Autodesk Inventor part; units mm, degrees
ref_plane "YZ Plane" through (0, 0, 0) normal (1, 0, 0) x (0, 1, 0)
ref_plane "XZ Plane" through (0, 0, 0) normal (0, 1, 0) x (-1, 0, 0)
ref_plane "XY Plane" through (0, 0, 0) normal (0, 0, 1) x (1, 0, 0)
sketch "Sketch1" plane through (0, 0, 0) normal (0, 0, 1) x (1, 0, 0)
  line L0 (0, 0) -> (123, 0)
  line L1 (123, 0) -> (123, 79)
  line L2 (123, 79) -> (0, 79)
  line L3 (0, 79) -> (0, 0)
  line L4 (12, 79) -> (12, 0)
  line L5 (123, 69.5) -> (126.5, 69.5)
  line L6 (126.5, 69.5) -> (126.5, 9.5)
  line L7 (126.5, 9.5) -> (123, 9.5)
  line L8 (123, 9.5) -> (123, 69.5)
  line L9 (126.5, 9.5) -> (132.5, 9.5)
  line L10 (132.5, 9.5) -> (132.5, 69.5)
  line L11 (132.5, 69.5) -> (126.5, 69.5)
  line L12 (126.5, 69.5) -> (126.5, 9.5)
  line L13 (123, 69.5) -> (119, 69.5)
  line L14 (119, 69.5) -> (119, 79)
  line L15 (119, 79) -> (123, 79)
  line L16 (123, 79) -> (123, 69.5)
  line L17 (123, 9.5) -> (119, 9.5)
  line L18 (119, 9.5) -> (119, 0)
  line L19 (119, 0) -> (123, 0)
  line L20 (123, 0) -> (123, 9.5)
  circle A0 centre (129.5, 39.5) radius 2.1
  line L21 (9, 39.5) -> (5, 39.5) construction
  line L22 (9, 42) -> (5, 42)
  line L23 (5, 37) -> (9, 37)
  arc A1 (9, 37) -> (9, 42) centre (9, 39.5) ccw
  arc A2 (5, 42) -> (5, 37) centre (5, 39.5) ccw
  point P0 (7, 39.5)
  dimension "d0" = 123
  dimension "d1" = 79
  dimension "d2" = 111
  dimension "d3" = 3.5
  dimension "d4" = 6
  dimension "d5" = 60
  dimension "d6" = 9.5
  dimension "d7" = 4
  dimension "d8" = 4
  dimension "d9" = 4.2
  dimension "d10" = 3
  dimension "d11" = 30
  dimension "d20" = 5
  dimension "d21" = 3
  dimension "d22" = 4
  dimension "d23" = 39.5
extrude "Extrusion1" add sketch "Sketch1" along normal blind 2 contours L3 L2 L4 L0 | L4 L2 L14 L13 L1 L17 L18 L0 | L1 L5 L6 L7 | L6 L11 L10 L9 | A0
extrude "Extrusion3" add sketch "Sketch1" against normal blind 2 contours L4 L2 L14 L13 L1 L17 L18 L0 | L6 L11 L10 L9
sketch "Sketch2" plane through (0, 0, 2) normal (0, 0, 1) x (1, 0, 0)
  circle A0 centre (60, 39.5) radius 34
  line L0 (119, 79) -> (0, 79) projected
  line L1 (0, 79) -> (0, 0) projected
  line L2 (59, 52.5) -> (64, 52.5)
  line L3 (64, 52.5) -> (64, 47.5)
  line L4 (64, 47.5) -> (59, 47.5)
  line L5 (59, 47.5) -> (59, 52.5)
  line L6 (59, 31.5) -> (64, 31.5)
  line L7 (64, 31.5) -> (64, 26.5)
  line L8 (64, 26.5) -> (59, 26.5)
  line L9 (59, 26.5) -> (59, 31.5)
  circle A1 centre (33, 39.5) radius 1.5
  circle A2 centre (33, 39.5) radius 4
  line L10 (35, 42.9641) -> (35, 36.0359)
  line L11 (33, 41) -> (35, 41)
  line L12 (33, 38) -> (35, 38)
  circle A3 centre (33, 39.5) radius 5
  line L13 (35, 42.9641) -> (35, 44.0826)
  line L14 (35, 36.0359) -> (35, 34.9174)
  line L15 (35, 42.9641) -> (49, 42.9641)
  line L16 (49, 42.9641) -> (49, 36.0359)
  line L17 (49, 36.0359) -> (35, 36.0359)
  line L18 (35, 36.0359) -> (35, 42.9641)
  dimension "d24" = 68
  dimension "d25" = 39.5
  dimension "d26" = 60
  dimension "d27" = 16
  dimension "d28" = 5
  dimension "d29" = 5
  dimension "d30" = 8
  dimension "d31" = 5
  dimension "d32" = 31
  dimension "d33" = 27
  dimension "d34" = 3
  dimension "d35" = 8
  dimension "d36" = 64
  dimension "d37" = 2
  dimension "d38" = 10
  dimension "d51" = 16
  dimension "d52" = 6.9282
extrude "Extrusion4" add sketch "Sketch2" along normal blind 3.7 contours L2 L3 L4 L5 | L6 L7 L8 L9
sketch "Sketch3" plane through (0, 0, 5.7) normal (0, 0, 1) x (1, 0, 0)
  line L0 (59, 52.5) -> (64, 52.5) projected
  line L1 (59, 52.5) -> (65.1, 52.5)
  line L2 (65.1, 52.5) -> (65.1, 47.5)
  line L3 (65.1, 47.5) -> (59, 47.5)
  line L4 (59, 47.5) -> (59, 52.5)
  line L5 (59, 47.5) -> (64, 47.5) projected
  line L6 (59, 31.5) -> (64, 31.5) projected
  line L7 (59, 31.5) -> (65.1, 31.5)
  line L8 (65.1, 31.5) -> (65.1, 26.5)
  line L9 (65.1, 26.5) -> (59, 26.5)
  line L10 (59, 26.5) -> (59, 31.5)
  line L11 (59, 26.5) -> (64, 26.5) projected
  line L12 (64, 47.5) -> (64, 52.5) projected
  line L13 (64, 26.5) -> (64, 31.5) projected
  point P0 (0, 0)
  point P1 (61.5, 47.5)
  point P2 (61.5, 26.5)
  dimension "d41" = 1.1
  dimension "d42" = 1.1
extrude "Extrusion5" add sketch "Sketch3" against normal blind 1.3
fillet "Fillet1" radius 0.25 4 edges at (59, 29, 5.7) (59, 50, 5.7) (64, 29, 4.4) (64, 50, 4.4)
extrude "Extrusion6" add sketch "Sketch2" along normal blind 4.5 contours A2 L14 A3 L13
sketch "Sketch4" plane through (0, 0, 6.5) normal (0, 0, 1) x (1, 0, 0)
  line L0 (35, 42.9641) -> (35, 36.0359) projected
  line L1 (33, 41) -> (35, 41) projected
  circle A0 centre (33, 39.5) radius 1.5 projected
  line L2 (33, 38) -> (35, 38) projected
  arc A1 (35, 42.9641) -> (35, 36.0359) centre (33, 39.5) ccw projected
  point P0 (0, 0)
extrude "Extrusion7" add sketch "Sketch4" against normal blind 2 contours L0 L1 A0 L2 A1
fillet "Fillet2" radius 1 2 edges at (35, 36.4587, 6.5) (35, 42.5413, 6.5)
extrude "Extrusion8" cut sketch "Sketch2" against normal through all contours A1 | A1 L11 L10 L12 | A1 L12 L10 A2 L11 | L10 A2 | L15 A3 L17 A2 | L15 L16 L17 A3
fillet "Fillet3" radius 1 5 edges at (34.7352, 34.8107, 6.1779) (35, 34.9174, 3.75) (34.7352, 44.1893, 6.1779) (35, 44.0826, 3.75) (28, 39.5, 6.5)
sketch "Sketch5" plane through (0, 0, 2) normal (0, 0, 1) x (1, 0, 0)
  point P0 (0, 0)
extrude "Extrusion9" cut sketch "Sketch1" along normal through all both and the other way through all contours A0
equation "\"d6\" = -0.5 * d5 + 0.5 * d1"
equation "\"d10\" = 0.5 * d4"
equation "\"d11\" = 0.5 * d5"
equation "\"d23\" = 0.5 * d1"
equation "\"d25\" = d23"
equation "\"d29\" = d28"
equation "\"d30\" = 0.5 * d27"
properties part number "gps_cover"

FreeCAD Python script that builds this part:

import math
import FreeCAD as App
import Part
import Sketcher

V = App.Vector
Q = App.Units.Quantity


def edges_at(feature, points):
    """Names of the edges that pass closest to the given points."""
    edges = feature.Shape.Edges
    near = lambda p: min(range(len(edges)), key=lambda i: edges[i].distToShape(Part.Vertex(*p))[0])
    return sorted({f"Edge{near(p) + 1}" for p in points})

doc = App.newDocument("Part")
body = doc.addObject("PartDesign::Body", "Body")

# Sketch on XY plane
sketch1 = body.newObject("Sketcher::SketchObject", "Sketch")
sketch1.AttachmentSupport = (doc.getObject("XY_Plane"), [""])
sketch1.MapMode = "FlatFace"
sketch1.addGeometry([
    Part.LineSegment(V(0, 79, 0), V(0, 0, 0)),  # 0
    Part.LineSegment(V(0, 0, 0), V(119, 0, 0)),  # 1
    Part.LineSegment(V(119, 0, 0), V(119, 9.5, 0)),  # 2
    Part.LineSegment(V(119, 9.5, 0), V(132.5, 9.5, 0)),  # 3
    Part.LineSegment(V(132.5, 9.5, 0), V(132.5, 69.5, 0)),  # 4
    Part.LineSegment(V(132.5, 69.5, 0), V(119, 69.5, 0)),  # 5
    Part.LineSegment(V(119, 69.5, 0), V(119, 79, 0)),  # 6
    Part.LineSegment(V(119, 79, 0), V(0, 79, 0)),  # 7
    Part.LineSegment(V(5, 42, 0), V(9, 42, 0)),  # 8
    Part.ArcOfCircle(Part.Circle(V(9, 39.5, 0), V(0, 0, 1), 2.5), math.radians(-90), math.radians(90)),  # 9
    Part.LineSegment(V(9, 37, 0), V(5, 37, 0)),  # 10
    Part.ArcOfCircle(Part.Circle(V(5, 39.5, 0), V(0, 0, 1), 2.5), math.radians(90), math.radians(270)),  # 11
], False)
sketch1.addConstraint([
    Sketcher.Constraint("Coincident", 0, 2, 1, 1),
    Sketcher.Constraint("Coincident", 1, 2, 2, 1),
    Sketcher.Constraint("Coincident", 2, 2, 3, 1),
    Sketcher.Constraint("Coincident", 3, 2, 4, 1),
    Sketcher.Constraint("Coincident", 4, 2, 5, 1),
    Sketcher.Constraint("Coincident", 5, 2, 6, 1),
    Sketcher.Constraint("Coincident", 6, 2, 7, 1),
    Sketcher.Constraint("Coincident", 7, 2, 0, 1),
    Sketcher.Constraint("Tangent", 8, 2, 9, 2),
    Sketcher.Constraint("Tangent", 9, 1, 10, 1),
    Sketcher.Constraint("Tangent", 10, 2, 11, 2),
    Sketcher.Constraint("Tangent", 11, 1, 8, 1),
    Sketcher.Constraint("Vertical", 0),
    Sketcher.Constraint("Horizontal", 1),
    Sketcher.Constraint("Vertical", 2),
    Sketcher.Constraint("Horizontal", 3),
    Sketcher.Constraint("Vertical", 4),
    Sketcher.Constraint("Horizontal", 5),
    Sketcher.Constraint("Vertical", 6),
    Sketcher.Constraint("Horizontal", 7),
    Sketcher.Constraint("Horizontal", 8),
    Sketcher.Constraint("Horizontal", 10),
    Sketcher.Constraint("Coincident", 0, 2, -1, 1),
    Sketcher.Constraint("Vertical", 2, 2, 5, 2),
    Sketcher.Constraint("Equal", 2, 6),
    Sketcher.Constraint("Radius", 9, Q("2.5 mm")),
    Sketcher.Constraint("DistanceX", 8, 1, 8, 2, Q("4 mm")),
    Sketcher.Constraint("DistanceY", 0, 2, 0, 1, Q("79 mm")),
    Sketcher.Constraint("DistanceY", 4, 1, 4, 2, Q("60 mm")),
    Sketcher.Constraint("DistanceX", -1, 1, 11, 3, Q("5 mm")),
    Sketcher.Constraint("DistanceY", 2, 2, 9, 3, Q("30 mm")),
    Sketcher.Constraint("DistanceX", 1, 1, 1, 2, Q("119 mm")),
    Sketcher.Constraint("DistanceX", 3, 1, 3, 2, Q("13.5 mm")),
])
pad1 = body.newObject("PartDesign::Pad", "Pad")
pad1.Profile = sketch1
pad1.Length = 2

# Sketch on XY plane
sketch2 = body.newObject("Sketcher::SketchObject", "Sketch001")
sketch2.AttachmentSupport = (doc.getObject("XY_Plane"), [""])
sketch2.MapMode = "FlatFace"
sketch2.addGeometry([
    Part.LineSegment(V(12, 79, 0), V(12, 0, 0)),  # 0
    Part.LineSegment(V(12, 0, 0), V(119, 0, 0)),  # 1
    Part.LineSegment(V(119, 0, 0), V(119, 9.5, 0)),  # 2
    Part.LineSegment(V(119, 9.5, 0), V(123, 9.5, 0)),  # 3
    Part.LineSegment(V(123, 9.5, 0), V(123, 69.5, 0)),  # 4
    Part.LineSegment(V(123, 69.5, 0), V(119, 69.5, 0)),  # 5
    Part.LineSegment(V(119, 69.5, 0), V(119, 79, 0)),  # 6
    Part.LineSegment(V(119, 79, 0), V(12, 79, 0)),  # 7
    Part.LineSegment(V(126.5, 69.5, 0), V(126.5, 9.5, 0)),  # 8
    Part.LineSegment(V(126.5, 9.5, 0), V(132.5, 9.5, 0)),  # 9
    Part.LineSegment(V(132.5, 9.5, 0), V(132.5, 69.5, 0)),  # 10
    Part.LineSegment(V(132.5, 69.5, 0), V(126.5, 69.5, 0)),  # 11
    Part.Circle(V(129.5, 39.5, 0), V(0, 0, 1), 2.1),  # 12
], False)
sketch2.addConstraint([
    Sketcher.Constraint("Coincident", 0, 2, 1, 1),
    Sketcher.Constraint("Coincident", 1, 2, 2, 1),
    Sketcher.Constraint("Coincident", 2, 2, 3, 1),
    Sketcher.Constraint("Coincident", 3, 2, 4, 1),
    Sketcher.Constraint("Coincident", 4, 2, 5, 1),
    Sketcher.Constraint("Coincident", 5, 2, 6, 1),
    Sketcher.Constraint("Coincident", 6, 2, 7, 1),
    Sketcher.Constraint("Coincident", 7, 2, 0, 1),
    Sketcher.Constraint("Coincident", 8, 2, 9, 1),
    Sketcher.Constraint("Coincident", 9, 2, 10, 1),
    Sketcher.Constraint("Coincident", 10, 2, 11, 1),
    Sketcher.Constraint("Coincident", 11, 2, 8, 1),
    Sketcher.Constraint("Vertical", 0),
    Sketcher.Constraint("Horizontal", 1),
    Sketcher.Constraint("Vertical", 2),
    Sketcher.Constraint("Horizontal", 3),
    Sketcher.Constraint("Vertical", 4),
    Sketcher.Constraint("Horizontal", 5),
    Sketcher.Constraint("Vertical", 6),
    Sketcher.Constraint("Horizontal", 7),
    Sketcher.Constraint("Vertical", 8),
    Sketcher.Constraint("Horizontal", 9),
    Sketcher.Constraint("Vertical", 10),
    Sketcher.Constraint("Horizontal", 11),
    Sketcher.Constraint("PointOnObject", 0, 2, -1),
    Sketcher.Constraint("Horizontal", 3, 2, 8, 2),
    Sketcher.Constraint("Horizontal", 5, 2, 10, 2),
    Sketcher.Constraint("Vertical", 2, 2, 5, 2),
    Sketcher.Constraint("Equal", 2, 6),
    Sketcher.Constraint("Diameter", 12, Q("4.2 mm")),
    Sketcher.Constraint("DistanceX", 3, 1, 3, 2, Q("4 mm")),
    Sketcher.Constraint("DistanceX", 9, 1, 9, 2, Q("6 mm")),
    Sketcher.Constraint("DistanceY", 0, 2, 0, 1, Q("79 mm")),
    Sketcher.Constraint("DistanceY", 4, 1, 4, 2, Q("60 mm")),
    Sketcher.Constraint("DistanceX", -1, 1, 3, 2, Q("123 mm")),
    Sketcher.Constraint("DistanceY", 2, 2, 12, 3, Q("30 mm")),
    Sketcher.Constraint("DistanceX", 0, 2, 3, 2, Q("111 mm")),
    Sketcher.Constraint("DistanceX", 8, 2, 12, 3, Q("3 mm")),
    Sketcher.Constraint("DistanceX", 3, 2, 8, 2, Q("3.5 mm")),
])
pad2 = body.newObject("PartDesign::Pad", "Pad001")
pad2.Profile = sketch2
pad2.Length = 2
pad2.Reversed = True

# Sketch on XY plane
sketch3 = body.newObject("Sketcher::SketchObject", "Sketch002")
sketch3.AttachmentSupport = (doc.getObject("XY_Plane"), [""])
sketch3.MapMode = "FlatFace"
sketch3.AttachmentOffset = App.Placement(V(0, 0, 2), App.Rotation())
sketch3.addGeometry([
    Part.LineSegment(V(64, 52.5, 0), V(59, 52.5, 0)),  # 0
    Part.LineSegment(V(59, 52.5, 0), V(59, 47.5, 0)),  # 1
    Part.LineSegment(V(59, 47.5, 0), V(64, 47.5, 0)),  # 2
    Part.LineSegment(V(64, 47.5, 0), V(64, 52.5, 0)),  # 3
    Part.LineSegment(V(64, 31.5, 0), V(59, 31.5, 0)),  # 4
    Part.LineSegment(V(59, 31.5, 0), V(59, 26.5, 0)),  # 5
    Part.LineSegment(V(59, 26.5, 0), V(64, 26.5, 0)),  # 6
    Part.LineSegment(V(64, 26.5, 0), V(64, 31.5, 0)),  # 7
], False)
sketch3.addConstraint([
    Sketcher.Constraint("Coincident", 0, 2, 1, 1),
    Sketcher.Constraint("Coincident", 1, 2, 2, 1),
    Sketcher.Constraint("Coincident", 2, 2, 3, 1),
    Sketcher.Constraint("Coincident", 3, 2, 0, 1),
    Sketcher.Constraint("Coincident", 4, 2, 5, 1),
    Sketcher.Constraint("Coincident", 5, 2, 6, 1),
    Sketcher.Constraint("Coincident", 6, 2, 7, 1),
    Sketcher.Constraint("Coincident", 7, 2, 4, 1),
    Sketcher.Constraint("Horizontal", 0),
    Sketcher.Constraint("Vertical", 1),
    Sketcher.Constraint("Horizontal", 2),
    Sketcher.Constraint("Vertical", 3),
    Sketcher.Constraint("Horizontal", 4),
    Sketcher.Constraint("Vertical", 5),
    Sketcher.Constraint("Horizontal", 6),
    Sketcher.Constraint("Vertical", 7),
    Sketcher.Constraint("Vertical", 1, 2, 4, 2),
    Sketcher.Constraint("Vertical", 3, 2, 6, 2),
    Sketcher.Constraint("Equal", 6, 1),
    Sketcher.Constraint("Equal", 3, 5),
    Sketcher.Constraint("DistanceX", 0, 2, 0, 1, Q("5 mm")),
    Sketcher.Constraint("DistanceX", -1, 1, 2, 2, Q("64 mm")),
    Sketcher.Constraint("DistanceY", 4, 2, 1, 2, Q("16 mm")),
    Sketcher.Constraint("DistanceY", -1, 1, 0, 2, Q("52.5 mm")),
])
pad3 = body.newObject("PartDesign::Pad", "Pad002")
pad3.Profile = sketch3
pad3.Length = 3.7

# Sketch on XY plane
sketch4 = body.newObject("Sketcher::SketchObject", "Sketch003")
sketch4.AttachmentSupport = (doc.getObject("XY_Plane"), [""])
sketch4.MapMode = "FlatFace"
sketch4.AttachmentOffset = App.Placement(V(0, 0, 5.7), App.Rotation())
sketch4.addGeometry([
    Part.LineSegment(V(59, 52.5, 0), V(59, 47.5, 0)),  # 0
    Part.LineSegment(V(59, 47.5, 0), V(65.1, 47.5, 0)),  # 1
    Part.LineSegment(V(65.1, 47.5, 0), V(65.1, 52.5, 0)),  # 2
    Part.LineSegment(V(65.1, 52.5, 0), V(59, 52.5, 0)),  # 3
    Part.LineSegment(V(59, 31.5, 0), V(59, 26.5, 0)),  # 4
    Part.LineSegment(V(59, 26.5, 0), V(65.1, 26.5, 0)),  # 5
    Part.LineSegment(V(65.1, 26.5, 0), V(65.1, 31.5, 0)),  # 6
    Part.LineSegment(V(65.1, 31.5, 0), V(59, 31.5, 0)),  # 7
], False)
sketch4.addConstraint([
    Sketcher.Constraint("Coincident", 0, 2, 1, 1),
    Sketcher.Constraint("Coincident", 1, 2, 2, 1),
    Sketcher.Constraint("Coincident", 2, 2, 3, 1),
    Sketcher.Constraint("Coincident", 3, 2, 0, 1),
    Sketcher.Constraint("Coincident", 4, 2, 5, 1),
    Sketcher.Constraint("Coincident", 5, 2, 6, 1),
    Sketcher.Constraint("Coincident", 6, 2, 7, 1),
    Sketcher.Constraint("Coincident", 7, 2, 4, 1),
    Sketcher.Constraint("Vertical", 0),
    Sketcher.Constraint("Horizontal", 1),
    Sketcher.Constraint("Vertical", 2),
    Sketcher.Constraint("Horizontal", 3),
    Sketcher.Constraint("Vertical", 4),
    Sketcher.Constraint("Horizontal", 5),
    Sketcher.Constraint("Vertical", 6),
    Sketcher.Constraint("Horizontal", 7),
    Sketcher.Constraint("Vertical", 3, 2, 4, 2),
    Sketcher.Constraint("Vertical", 2, 2, 5, 2),
    Sketcher.Constraint("Equal", 2, 4),
    Sketcher.Constraint("DistanceY", 0, 2, 0, 1, Q("5 mm")),
    Sketcher.Constraint("DistanceX", 1, 1, 1, 2, Q("6.1 mm")),
    Sketcher.Constraint("DistanceX", -1, 1, 0, 2, Q("59 mm")),
    Sketcher.Constraint("DistanceY", 4, 2, 0, 2, Q("21 mm")),
    Sketcher.Constraint("DistanceY", -1, 1, 0, 2, Q("47.5 mm")),
])
pad4 = body.newObject("PartDesign::Pad", "Pad003")
pad4.Profile = sketch4
pad4.Length = 1.3
pad4.Reversed = True
doc.recompute()

fillet = body.newObject("PartDesign::Fillet", "Fillet")
fillet.Base = (pad4, edges_at(pad4, [
    (59, 29, 5.7),
    (59, 50, 5.7),
    (64, 29, 4.4),
    (64, 50, 4.4),
]))
fillet.Radius = 0.25

# Sketch on XY plane
sketch5 = body.newObject("Sketcher::SketchObject", "Sketch004")
sketch5.AttachmentSupport = (doc.getObject("XY_Plane"), [""])
sketch5.MapMode = "FlatFace"
sketch5.AttachmentOffset = App.Placement(V(0, 0, 2), App.Rotation())
sketch5.addGeometry([
    Part.ArcOfCircle(Part.Circle(V(33, 39.5, 0), V(0, 0, 1), 4), math.radians(59.999988), math.radians(300.000012)),
    Part.LineSegment(V(35, 42.9641, 0), V(35, 44.0826, 0)),
    Part.ArcOfCircle(Part.Circle(V(33, 39.5, 0), V(0, 0, 1), 5), math.radians(66.421933), math.radians(293.578067)),
    Part.LineSegment(V(35, 34.9174, 0), V(35, 36.0359, 0)),
], False)
sketch5.addConstraint([
    Sketcher.Constraint("Coincident", 0, 1, 1, 1),
    Sketcher.Constraint("Coincident", 1, 2, 2, 1),
    Sketcher.Constraint("Coincident", 2, 2, 3, 1),
    Sketcher.Constraint("Coincident", 3, 2, 0, 2),
    Sketcher.Constraint("Vertical", 1),
    Sketcher.Constraint("Vertical", 3),
    Sketcher.Constraint("Coincident", 2, 3, 0, 3),
    Sketcher.Constraint("Vertical", 1, 2, 2, 2),
    Sketcher.Constraint("Radius", 0, Q("4 mm")),
    Sketcher.Constraint("Radius", 2, Q("5 mm")),
    Sketcher.Constraint("DistanceX", 0, 3, 0, 1, Q("2 mm")),
    Sketcher.Constraint("DistanceY", -1, 1, 0, 3, Q("39.5 mm")),
    Sketcher.Constraint("DistanceX", -1, 1, 0, 3, Q("33 mm")),
])
pad5 = body.newObject("PartDesign::Pad", "Pad004")
pad5.Profile = sketch5
pad5.Length = 4.5

# Sketch on XY plane
sketch6 = body.newObject("Sketcher::SketchObject", "Sketch005")
sketch6.AttachmentSupport = (doc.getObject("XY_Plane"), [""])
sketch6.MapMode = "FlatFace"
sketch6.AttachmentOffset = App.Placement(V(0, 0, 6.5), App.Rotation())
sketch6.addGeometry([
    Part.LineSegment(V(35, 41, 0), V(35, 42.9641, 0)),  # 0
    Part.ArcOfCircle(Part.Circle(V(33, 39.5, 0), V(0, 0, 1), 3.999999), math.radians(59.999988), math.radians(300.000012)),  # 1
    Part.LineSegment(V(35, 36.0359, 0), V(35, 38, 0)),  # 2
    Part.LineSegment(V(35, 38, 0), V(33, 38, 0)),  # 3
    Part.ArcOfCircle(Part.Circle(V(33, 39.5, 0), V(0, 0, 1), 1.5), math.radians(90), math.radians(270)),  # 4
    Part.LineSegment(V(33, 41, 0), V(35, 41, 0)),  # 5
], False)
sketch6.addConstraint([
    Sketcher.Constraint("Coincident", 0, 2, 1, 1),
    Sketcher.Constraint("Coincident", 1, 2, 2, 1),
    Sketcher.Constraint("Coincident", 2, 2, 3, 1),
    Sketcher.Constraint("Tangent", 3, 2, 4, 2),
    Sketcher.Constraint("Tangent", 4, 1, 5, 1),
    Sketcher.Constraint("Coincident", 5, 2, 0, 1),
    Sketcher.Constraint("Vertical", 0),
    Sketcher.Constraint("Vertical", 2),
    Sketcher.Constraint("Horizontal", 3),
    Sketcher.Constraint("Horizontal", 5),
    Sketcher.Constraint("Coincident", 4, 3, 1, 3),
    Sketcher.Constraint("Vertical", 0, 2, 1, 2),
    Sketcher.Constraint("Radius", 1, Q("4 mm")),
    Sketcher.Constraint("Radius", 4, Q("1.5 mm")),
    Sketcher.Constraint("DistanceX", 3, 2, 3, 1, Q("2 mm")),
    Sketcher.Constraint("DistanceX", -1, 1, 1, 3, Q("33 mm")),
    Sketcher.Constraint("DistanceY", -1, 1, 2, 2, Q("38 mm")),
])
pad6 = body.newObject("PartDesign::Pad", "Pad005")
pad6.Profile = sketch6
pad6.Length = 2
pad6.Reversed = True
doc.recompute()

fillet2 = body.newObject("PartDesign::Fillet", "Fillet001")
fillet2.Base = (pad6, edges_at(pad6, [(35, 36.459, 6.5), (35, 42.541, 6.5)]))
fillet2.Radius = 1

# Sketch on XY plane
sketch7 = body.newObject("Sketcher::SketchObject", "Sketch006")
sketch7.AttachmentSupport = (doc.getObject("XY_Plane"), [""])
sketch7.MapMode = "FlatFace"
sketch7.AttachmentOffset = App.Placement(V(0, 0, 2), App.Rotation())
sketch7.addGeometry([
    Part.ArcOfCircle(Part.Circle(V(33, 39.5, 0), V(0, 0, 1), 4), math.radians(59.999988), math.radians(300.000012)),
    Part.LineSegment(V(35, 36.0359, 0), V(49, 36.0359, 0)),
    Part.LineSegment(V(49, 36.0359, 0), V(49, 42.9641, 0)),
    Part.LineSegment(V(49, 42.9641, 0), V(35, 42.9641, 0)),
], False)
sketch7.addConstraint([
    Sketcher.Constraint("Coincident", 0, 2, 1, 1),
    Sketcher.Constraint("Coincident", 1, 2, 2, 1),
    Sketcher.Constraint("Coincident", 2, 2, 3, 1),
    Sketcher.Constraint("Coincident", 3, 2, 0, 1),
    Sketcher.Constraint("Horizontal", 1),
    Sketcher.Constraint("Vertical", 2),
    Sketcher.Constraint("Horizontal", 3),
    Sketcher.Constraint("Vertical", 0, 2, 3, 2),
    Sketcher.Constraint("Radius", 0, Q("4 mm")),
    Sketcher.Constraint("DistanceX", 0, 3, 0, 2, Q("2 mm")),
    Sketcher.Constraint("DistanceX", 0, 3, 1, 2, Q("16 mm")),
    Sketcher.Constraint("DistanceY", -1, 1, 0, 3, Q("39.5 mm")),
    Sketcher.Constraint("DistanceX", -1, 1, 0, 3, Q("33 mm")),
])
pocket1 = body.newObject("PartDesign::Pocket", "Pocket")
pocket1.Profile = sketch7
pocket1.Type = "ThroughAll"
doc.recompute()

fillet3 = body.newObject("PartDesign::Fillet", "Fillet002")
fillet3.Base = (pocket1, edges_at(pocket1, [
    (34.735, 34.811, 6.178),
    (35, 34.917, 3.75),
    (34.735, 44.189, 6.178),
    (35, 44.083, 3.75),
    (28, 39.5, 6.5),
]))
fillet3.Radius = 1

# Sketch on XY plane
sketch8 = body.newObject("Sketcher::SketchObject", "Sketch007")
sketch8.AttachmentSupport = (doc.getObject("XY_Plane"), [""])
sketch8.MapMode = "FlatFace"
sketch8.addGeometry(Part.Circle(V(129.5, 39.5, 0), V(0, 0, 1), 2.1), False)
sketch8.addConstraint([
    Sketcher.Constraint("Diameter", 0, Q("4.2 mm")),
    Sketcher.Constraint("DistanceY", -1, 1, 0, 3, Q("39.5 mm")),
    Sketcher.Constraint("DistanceX", -1, 1, 0, 3, Q("129.5 mm")),
])
pocket2 = body.newObject("PartDesign::Pocket", "Pocket001")
pocket2.Profile = sketch8
pocket2.Type = "ThroughAll"
pocket2.Midplane = True

doc.recompute()
